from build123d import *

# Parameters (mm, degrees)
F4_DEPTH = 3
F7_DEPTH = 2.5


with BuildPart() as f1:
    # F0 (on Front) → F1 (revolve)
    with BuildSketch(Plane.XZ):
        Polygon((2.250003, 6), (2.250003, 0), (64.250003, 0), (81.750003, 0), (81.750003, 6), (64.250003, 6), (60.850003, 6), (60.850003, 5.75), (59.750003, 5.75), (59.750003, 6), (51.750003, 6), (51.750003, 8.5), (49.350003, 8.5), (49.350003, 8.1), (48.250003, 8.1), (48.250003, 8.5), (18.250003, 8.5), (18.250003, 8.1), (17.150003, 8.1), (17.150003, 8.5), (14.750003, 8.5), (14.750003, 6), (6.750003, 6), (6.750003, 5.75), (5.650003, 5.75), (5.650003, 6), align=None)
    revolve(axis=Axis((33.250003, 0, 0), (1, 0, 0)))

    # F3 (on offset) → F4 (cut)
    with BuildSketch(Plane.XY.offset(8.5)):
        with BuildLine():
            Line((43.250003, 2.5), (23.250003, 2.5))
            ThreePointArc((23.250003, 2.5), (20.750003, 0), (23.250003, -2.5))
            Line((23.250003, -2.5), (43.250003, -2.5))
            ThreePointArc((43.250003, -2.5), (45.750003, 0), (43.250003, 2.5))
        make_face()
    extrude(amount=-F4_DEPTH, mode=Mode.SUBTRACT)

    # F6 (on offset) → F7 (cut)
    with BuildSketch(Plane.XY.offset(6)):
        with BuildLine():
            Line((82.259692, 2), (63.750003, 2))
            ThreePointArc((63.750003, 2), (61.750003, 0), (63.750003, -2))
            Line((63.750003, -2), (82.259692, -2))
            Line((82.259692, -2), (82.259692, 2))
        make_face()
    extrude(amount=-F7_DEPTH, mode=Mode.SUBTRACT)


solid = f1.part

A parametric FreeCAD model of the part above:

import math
import FreeCAD as App
import Part
import Sketcher
Q = App.Units.Quantity

doc = App.newDocument("Part")
params = doc.addObject("Spreadsheet::Sheet", "Params")
for row, (alias, value) in enumerate([
    ("sketch1_width", "8 mm"),
    ("sketch1_width2", "30 mm"),
    ("sketch1_height", "6 mm"),
    ("sketch1_width3", "79.5 mm"),
    ("sketch1_width4", "20.9 mm"),
    ("revolution_angle", "360 deg"),
    ("sketch2_radius", "2.5 mm"),
    ("sketch2_width", "20 mm"),
    ("pocket1_length", "3 mm"),
    ("sketch3_radius", "2 mm"),
    ("pocket2_length", "2.5 mm"),
], start=1):
    params.set(f"A{row}", alias)
    params.set(f"B{row}", "=" + value)
    params.setAlias(f"B{row}", alias)

body = doc.addObject("PartDesign::Body", "Body")

# Sketch on XZ plane
sketch1 = body.newObject("Sketcher::SketchObject", "Sketch")
sketch1.AttachmentSupport = (doc.getObject("XZ_Plane"), [""])
sketch1.MapMode = "FlatFace"
sketch1.addGeometry([
    Part.LineSegment(App.Vector(2.250003, 6, 0), App.Vector(2.250003, 0, 0)),  # 0
    Part.LineSegment(App.Vector(2.250003, 0, 0), App.Vector(81.750003, 0, 0)),  # 1
    Part.LineSegment(App.Vector(81.750003, 0, 0), App.Vector(81.750003, 6, 0)),  # 2
    Part.LineSegment(App.Vector(81.750003, 6, 0), App.Vector(60.850003, 6, 0)),  # 3
    Part.LineSegment(App.Vector(60.850003, 6, 0), App.Vector(60.850003, 5.75, 0)),  # 4
    Part.LineSegment(App.Vector(60.850003, 5.75, 0), App.Vector(59.750003, 5.75, 0)),  # 5
    Part.LineSegment(App.Vector(59.750003, 5.75, 0), App.Vector(59.750003, 6, 0)),  # 6
    Part.LineSegment(App.Vector(59.750003, 6, 0), App.Vector(51.750003, 6, 0)),  # 7
    Part.LineSegment(App.Vector(51.750003, 6, 0), App.Vector(51.750003, 8.5, 0)),  # 8
    Part.LineSegment(App.Vector(51.750003, 8.5, 0), App.Vector(49.350003, 8.5, 0)),  # 9
    Part.LineSegment(App.Vector(49.350003, 8.5, 0), App.Vector(49.350003, 8.1, 0)),  # 10
    Part.LineSegment(App.Vector(49.350003, 8.1, 0), App.Vector(48.250003, 8.1, 0)),  # 11
    Part.LineSegment(App.Vector(48.250003, 8.1, 0), App.Vector(48.250003, 8.5, 0)),  # 12
    Part.LineSegment(App.Vector(48.250003, 8.5, 0), App.Vector(18.250003, 8.5, 0)),  # 13
    Part.LineSegment(App.Vector(18.250003, 8.5, 0), App.Vector(18.250003, 8.1, 0)),  # 14
    Part.LineSegment(App.Vector(18.250003, 8.1, 0), App.Vector(17.150003, 8.1, 0)),  # 15
    Part.LineSegment(App.Vector(17.150003, 8.1, 0), App.Vector(17.150003, 8.5, 0)),  # 16
    Part.LineSegment(App.Vector(17.150003, 8.5, 0), App.Vector(14.750003, 8.5, 0)),  # 17
    Part.LineSegment(App.Vector(14.750003, 8.5, 0), App.Vector(14.750003, 6, 0)),  # 18
    Part.LineSegment(App.Vector(14.750003, 6, 0), App.Vector(6.750003, 6, 0)),  # 19
    Part.LineSegment(App.Vector(6.750003, 6, 0), App.Vector(6.750003, 5.75, 0)),  # 20
    Part.LineSegment(App.Vector(6.750003, 5.75, 0), App.Vector(5.650003, 5.75, 0)),  # 21
    Part.LineSegment(App.Vector(5.650003, 5.75, 0), App.Vector(5.650003, 6, 0)),  # 22
    Part.LineSegment(App.Vector(5.650003, 6, 0), App.Vector(2.250003, 6, 0)),  # 23
], False)
sketch1.addConstraint([
    Sketcher.Constraint("Coincident", 0, 2, 1, 1),
    Sketcher.Constraint("Coincident", 1, 2, 2, 1),
    Sketcher.Constraint("Coincident", 2, 2, 3, 1),
    Sketcher.Constraint("Coincident", 3, 2, 4, 1),
    Sketcher.Constraint("Coincident", 4, 2, 5, 1),
    Sketcher.Constraint("Coincident", 5, 2, 6, 1),
    Sketcher.Constraint("Coincident", 6, 2, 7, 1),
    Sketcher.Constraint("Coincident", 7, 2, 8, 1),
    Sketcher.Constraint("Coincident", 8, 2, 9, 1),
    Sketcher.Constraint("Coincident", 9, 2, 10, 1),
    Sketcher.Constraint("Coincident", 10, 2, 11, 1),
    Sketcher.Constraint("Coincident", 11, 2, 12, 1),
    Sketcher.Constraint("Coincident", 12, 2, 13, 1),
    Sketcher.Constraint("Coincident", 13, 2, 14, 1),
    Sketcher.Constraint("Coincident", 14, 2, 15, 1),
    Sketcher.Constraint("Coincident", 15, 2, 16, 1),
    Sketcher.Constraint("Coincident", 16, 2, 17, 1),
    Sketcher.Constraint("Coincident", 17, 2, 18, 1),
    Sketcher.Constraint("Coincident", 18, 2, 19, 1),
    Sketcher.Constraint("Coincident", 19, 2, 20, 1),
    Sketcher.Constraint("Coincident", 20, 2, 21, 1),
    Sketcher.Constraint("Coincident", 21, 2, 22, 1),
    Sketcher.Constraint("Coincident", 22, 2, 23, 1),
    Sketcher.Constraint("Coincident", 23, 2, 0, 1),
    Sketcher.Constraint("Vertical", 0),
    Sketcher.Constraint("Horizontal", 1),
    Sketcher.Constraint("Vertical", 2),
    Sketcher.Constraint("Horizontal", 3),
    Sketcher.Constraint("Vertical", 4),
    Sketcher.Constraint("Horizontal", 5),
    Sketcher.Constraint("Vertical", 6),
    Sketcher.Constraint("Horizontal", 7),
    Sketcher.Constraint("Vertical", 8),
    Sketcher.Constraint("Horizontal", 9),
    Sketcher.Constraint("Vertical", 10),
    Sketcher.Constraint("Horizontal", 11),
    Sketcher.Constraint("Vertical", 12),
    Sketcher.Constraint("Horizontal", 13),
    Sketcher.Constraint("Vertical", 14),
    Sketcher.Constraint("Horizontal", 15),
    Sketcher.Constraint("Vertical", 16),
    Sketcher.Constraint("Horizontal", 17),
    Sketcher.Constraint("Vertical", 18),
    Sketcher.Constraint("Horizontal", 19),
    Sketcher.Constraint("Vertical", 20),
    Sketcher.Constraint("Horizontal", 21),
    Sketcher.Constraint("Vertical", 22),
    Sketcher.Constraint("Horizontal", 23),
    Sketcher.Constraint("PointOnObject", 0, 2, -1),
    Sketcher.Constraint("Horizontal", 3, 2, 6, 2),
    Sketcher.Constraint("Horizontal", 9, 2, 12, 2),
    Sketcher.Constraint("Horizontal", 11, 2, 14, 2),
    Sketcher.Constraint("Horizontal", 13, 2, 16, 2),
    Sketcher.Constraint("Horizontal", 7, 2, 18, 2),
    Sketcher.Constraint("Horizontal", 5, 2, 20, 2),
    Sketcher.Constraint("Horizontal", 19, 2, 22, 2),
    Sketcher.Constraint("Equal", 5, 11),
    Sketcher.Constraint("Equal", 11, 15),
    Sketcher.Constraint("Equal", 9, 17),
    Sketcher.Constraint("Equal", 7, 19),
    Sketcher.Constraint("Equal", 15, 21),
    Sketcher.Constraint("DistanceX", 7, 2, 7, 1, Q("8 mm")),
    Sketcher.Constraint("DistanceX", 13, 2, 13, 1, Q("30 mm")),
    Sketcher.Constraint("DistanceY", 0, 2, 0, 1, Q("6 mm")),
    Sketcher.Constraint("DistanceX", 1, 1, 1, 2, Q("79.5 mm")),
    Sketcher.Constraint("DistanceX", 3, 2, 3, 1, Q("20.9 mm")),
    Sketcher.Constraint("DistanceX", 5, 2, 5, 1, Q("1.1 mm")),
    Sketcher.Constraint("DistanceX", 9, 2, 9, 1, Q("2.4 mm")),
    Sketcher.Constraint("DistanceY", 8, 1, 8, 2, Q("2.5 mm")),
    Sketcher.Constraint("DistanceY", 10, 2, 10, 1, Q("0.4 mm")),
    Sketcher.Constraint("DistanceY", 4, 2, 4, 1, Q("0.25 mm")),
    Sketcher.Constraint("DistanceX", -1, 1, 0, 2, Q("2.250003 mm")),
])
sketch1.setExpression("Constraints[61]", "Params.sketch1_width")
sketch1.setExpression("Constraints[62]", "Params.sketch1_width2")
sketch1.setExpression("Constraints[63]", "Params.sketch1_height")
sketch1.setExpression("Constraints[64]", "Params.sketch1_width3")
sketch1.setExpression("Constraints[65]", "Params.sketch1_width4")
revolution = body.newObject("PartDesign::Revolution", "Revolution")
revolution.Profile = sketch1
revolution.ReferenceAxis = (sketch1, ["H_Axis"])
revolution.setExpression("Angle", "Params.revolution_angle")

# Sketch on XY plane
sketch2 = body.newObject("Sketcher::SketchObject", "Sketch001")
sketch2.AttachmentSupport = (doc.getObject("XY_Plane"), [""])
sketch2.MapMode = "FlatFace"
sketch2.AttachmentOffset = App.Placement(App.Vector(0, 0, 8.5), App.Rotation())
sketch2.addGeometry([
    Part.LineSegment(App.Vector(43.250003, 2.5, 0), App.Vector(23.250003, 2.5, 0)),
    Part.ArcOfCircle(Part.Circle(App.Vector(23.250003, 0, 0), App.Vector(0, 0, 1), 2.5), math.radians(90), math.radians(270)),
    Part.LineSegment(App.Vector(23.250003, -2.5, 0), App.Vector(43.250003, -2.5, 0)),
    Part.ArcOfCircle(Part.Circle(App.Vector(43.250003, 0, 0), App.Vector(0, 0, 1), 2.5), math.radians(-90), math.radians(90)),
], False)
sketch2.addConstraint([
    Sketcher.Constraint("Tangent", 0, 2, 1, 1),
    Sketcher.Constraint("Tangent", 1, 2, 2, 1),
    Sketcher.Constraint("Tangent", 2, 2, 3, 1),
    Sketcher.Constraint("Tangent", 3, 2, 0, 1),
    Sketcher.Constraint("Horizontal", 0),
    Sketcher.Constraint("Horizontal", 2),
    Sketcher.Constraint("PointOnObject", 1, 3, -1),
    Sketcher.Constraint("Radius", 1, Q("2.5 mm")),
    Sketcher.Constraint("DistanceX", 0, 2, 0, 1, Q("20 mm")),
    Sketcher.Constraint("DistanceX", -1, 1, 1, 3, Q("23.250003 mm")),
])
sketch2.setExpression("Constraints[7]", "Params.sketch2_radius")
sketch2.setExpression("Constraints[8]", "Params.sketch2_width")
pocket1 = body.newObject("PartDesign::Pocket", "Pocket")
pocket1.Profile = sketch2
pocket1.setExpression("Length", "Params.pocket1_length")

# Sketch on XY plane
sketch3 = body.newObject("Sketcher::SketchObject", "Sketch002")
sketch3.AttachmentSupport = (doc.getObject("XY_Plane"), [""])
sketch3.MapMode = "FlatFace"
sketch3.AttachmentOffset = App.Placement(App.Vector(0, 0, 6), App.Rotation())
sketch3.addGeometry([
    Part.LineSegment(App.Vector(82.259692, 2, 0), App.Vector(63.750003, 2, 0)),
    Part.ArcOfCircle(Part.Circle(App.Vector(63.750003, 0, 0), App.Vector(0, 0, 1), 2), math.radians(90), math.radians(270)),
    Part.LineSegment(App.Vector(63.750003, -2, 0), App.Vector(82.259692, -2, 0)),
    Part.LineSegment(App.Vector(82.259692, -2, 0), App.Vector(82.259692, 2, 0)),
], False)
sketch3.addConstraint([
    Sketcher.Constraint("Tangent", 0, 2, 1, 1),
    Sketcher.Constraint("Tangent", 1, 2, 2, 1),
    Sketcher.Constraint("Coincident", 2, 2, 3, 1),
    Sketcher.Constraint("Coincident", 3, 2, 0, 1),
    Sketcher.Constraint("Horizontal", 0),
    Sketcher.Constraint("Horizontal", 2),
    Sketcher.Constraint("Vertical", 3),
    Sketcher.Constraint("PointOnObject", 1, 3, -1),
    Sketcher.Constraint("Radius", 1, Q("2 mm")),
    Sketcher.Constraint("DistanceX", 0, 2, 0, 1, Q("18.509689 mm")),
    Sketcher.Constraint("DistanceX", -1, 1, 2, 2, Q("82.259692 mm")),
])
sketch3.setExpression("Constraints[8]", "Params.sketch3_radius")
pocket2 = body.newObject("PartDesign::Pocket", "Pocket001")
pocket2.Profile = sketch3
pocket2.setExpression("Length", "Params.pocket2_length")

doc.recompute()
